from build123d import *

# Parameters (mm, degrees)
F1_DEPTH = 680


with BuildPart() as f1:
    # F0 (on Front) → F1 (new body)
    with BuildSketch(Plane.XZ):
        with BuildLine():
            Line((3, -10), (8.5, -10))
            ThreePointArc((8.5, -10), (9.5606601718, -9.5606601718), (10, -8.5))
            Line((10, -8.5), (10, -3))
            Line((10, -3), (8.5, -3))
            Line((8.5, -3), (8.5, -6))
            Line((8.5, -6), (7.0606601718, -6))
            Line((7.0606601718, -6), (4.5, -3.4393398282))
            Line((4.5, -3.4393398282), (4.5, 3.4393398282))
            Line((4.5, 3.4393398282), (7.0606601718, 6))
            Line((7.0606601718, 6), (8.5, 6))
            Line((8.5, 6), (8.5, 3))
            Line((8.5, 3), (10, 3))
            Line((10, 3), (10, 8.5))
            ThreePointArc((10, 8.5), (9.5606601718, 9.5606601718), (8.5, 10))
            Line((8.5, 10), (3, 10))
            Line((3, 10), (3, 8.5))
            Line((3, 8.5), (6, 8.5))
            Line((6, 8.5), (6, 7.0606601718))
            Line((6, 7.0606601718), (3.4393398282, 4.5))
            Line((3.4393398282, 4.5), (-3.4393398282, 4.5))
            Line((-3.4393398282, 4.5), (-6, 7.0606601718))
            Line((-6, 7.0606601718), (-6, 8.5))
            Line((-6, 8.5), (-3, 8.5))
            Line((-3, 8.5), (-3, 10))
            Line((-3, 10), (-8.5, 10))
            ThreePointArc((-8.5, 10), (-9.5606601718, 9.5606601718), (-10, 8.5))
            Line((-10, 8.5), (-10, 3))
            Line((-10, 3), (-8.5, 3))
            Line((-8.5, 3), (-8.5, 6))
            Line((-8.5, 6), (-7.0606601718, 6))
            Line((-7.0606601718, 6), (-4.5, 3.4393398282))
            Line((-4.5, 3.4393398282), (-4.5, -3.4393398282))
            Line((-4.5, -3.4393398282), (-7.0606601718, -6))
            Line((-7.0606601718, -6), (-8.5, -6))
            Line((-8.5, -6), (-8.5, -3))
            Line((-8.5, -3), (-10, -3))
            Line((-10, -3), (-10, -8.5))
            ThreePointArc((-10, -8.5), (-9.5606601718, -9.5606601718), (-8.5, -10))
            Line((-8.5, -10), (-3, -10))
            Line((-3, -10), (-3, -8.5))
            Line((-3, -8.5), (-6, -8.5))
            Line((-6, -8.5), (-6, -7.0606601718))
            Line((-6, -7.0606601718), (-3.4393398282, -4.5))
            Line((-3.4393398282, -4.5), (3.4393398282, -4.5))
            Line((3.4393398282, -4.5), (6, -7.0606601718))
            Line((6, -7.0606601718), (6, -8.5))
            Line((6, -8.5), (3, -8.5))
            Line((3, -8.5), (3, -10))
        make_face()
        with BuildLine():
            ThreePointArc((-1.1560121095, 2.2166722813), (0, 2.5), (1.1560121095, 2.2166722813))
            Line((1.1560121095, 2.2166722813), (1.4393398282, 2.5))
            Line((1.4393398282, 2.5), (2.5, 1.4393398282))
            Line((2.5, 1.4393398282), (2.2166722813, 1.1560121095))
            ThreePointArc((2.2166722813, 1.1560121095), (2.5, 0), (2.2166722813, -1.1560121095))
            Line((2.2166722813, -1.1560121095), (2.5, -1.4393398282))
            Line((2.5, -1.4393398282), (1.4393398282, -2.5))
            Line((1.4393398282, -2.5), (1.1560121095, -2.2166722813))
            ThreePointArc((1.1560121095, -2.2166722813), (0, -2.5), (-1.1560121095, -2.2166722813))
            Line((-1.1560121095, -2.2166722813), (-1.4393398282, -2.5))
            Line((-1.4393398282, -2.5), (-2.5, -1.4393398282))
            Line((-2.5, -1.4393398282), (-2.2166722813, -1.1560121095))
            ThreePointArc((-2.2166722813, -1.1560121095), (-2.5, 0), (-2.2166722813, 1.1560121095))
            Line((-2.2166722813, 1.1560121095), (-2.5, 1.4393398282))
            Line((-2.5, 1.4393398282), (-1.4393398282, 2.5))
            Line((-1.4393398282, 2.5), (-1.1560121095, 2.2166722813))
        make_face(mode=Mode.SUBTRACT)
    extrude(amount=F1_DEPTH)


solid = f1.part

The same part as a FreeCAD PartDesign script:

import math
import FreeCAD as App
import Part
import Sketcher
from FreeCAD import Vector

doc = App.newDocument("Part")
body = doc.addObject("PartDesign::Body", "Body")

# Sketch on XZ plane
sketch1 = doc.addObject("Sketcher::SketchObject", "Sketch")
body.addObject(sketch1)
sketch1.AttachmentSupport = (doc.XZ_Plane, [""])
sketch1.MapMode = "FlatFace"
sketch1.addGeometry(Part.LineSegment(Vector(3, -10, 0), Vector(8.5, -10, 0)), False)
sketch1.addGeometry(Part.ArcOfCircle(Part.Circle(Vector(8.5, -8.5, 0), Vector(0, 0, 1), 1.5), math.radians(-90), math.radians(0)), False)
sketch1.addGeometry(Part.LineSegment(Vector(10, -8.5, 0), Vector(10, -3, 0)), False)
sketch1.addGeometry(Part.LineSegment(Vector(10, -3, 0), Vector(8.5, -3, 0)), False)
sketch1.addGeometry(Part.LineSegment(Vector(8.5, -3, 0), Vector(8.5, -6, 0)), False)
sketch1.addGeometry(Part.LineSegment(Vector(8.5, -6, 0), Vector(7.06066, -6, 0)), False)
sketch1.addGeometry(Part.LineSegment(Vector(7.06066, -6, 0), Vector(4.5, -3.43934, 0)), False)
sketch1.addGeometry(Part.LineSegment(Vector(4.5, -3.43934, 0), Vector(4.5, 3.43934, 0)), False)
sketch1.addGeometry(Part.LineSegment(Vector(4.5, 3.43934, 0), Vector(7.06066, 6, 0)), False)
sketch1.addGeometry(Part.LineSegment(Vector(7.06066, 6, 0), Vector(8.5, 6, 0)), False)
sketch1.addGeometry(Part.LineSegment(Vector(8.5, 6, 0), Vector(8.5, 3, 0)), False)
sketch1.addGeometry(Part.LineSegment(Vector(8.5, 3, 0), Vector(10, 3, 0)), False)
sketch1.addGeometry(Part.LineSegment(Vector(10, 3, 0), Vector(10, 8.5, 0)), False)
sketch1.addGeometry(Part.ArcOfCircle(Part.Circle(Vector(8.5, 8.5, 0), Vector(0, 0, 1), 1.5), math.radians(0), math.radians(90)), False)
sketch1.addGeometry(Part.LineSegment(Vector(8.5, 10, 0), Vector(3, 10, 0)), False)
sketch1.addGeometry(Part.LineSegment(Vector(3, 10, 0), Vector(3, 8.5, 0)), False)
sketch1.addGeometry(Part.LineSegment(Vector(3, 8.5, 0), Vector(6, 8.5, 0)), False)
sketch1.addGeometry(Part.LineSegment(Vector(6, 8.5, 0), Vector(6, 7.06066, 0)), False)
sketch1.addGeometry(Part.LineSegment(Vector(6, 7.06066, 0), Vector(3.43934, 4.5, 0)), False)
sketch1.addGeometry(Part.LineSegment(Vector(3.43934, 4.5, 0), Vector(-3.43934, 4.5, 0)), False)
sketch1.addGeometry(Part.LineSegment(Vector(-3.43934, 4.5, 0), Vector(-6, 7.06066, 0)), False)
sketch1.addGeometry(Part.LineSegment(Vector(-6, 7.06066, 0), Vector(-6, 8.5, 0)), False)
sketch1.addGeometry(Part.LineSegment(Vector(-6, 8.5, 0), Vector(-3, 8.5, 0)), False)
sketch1.addGeometry(Part.LineSegment(Vector(-3, 8.5, 0), Vector(-3, 10, 0)), False)
sketch1.addGeometry(Part.LineSegment(Vector(-3, 10, 0), Vector(-8.5, 10, 0)), False)
sketch1.addGeometry(Part.ArcOfCircle(Part.Circle(Vector(-8.5, 8.5, 0), Vector(0, 0, 1), 1.5), math.radians(90), math.radians(180)), False)
sketch1.addGeometry(Part.LineSegment(Vector(-10, 8.5, 0), Vector(-10, 3, 0)), False)
sketch1.addGeometry(Part.LineSegment(Vector(-10, 3, 0), Vector(-8.5, 3, 0)), False)
sketch1.addGeometry(Part.LineSegment(Vector(-8.5, 3, 0), Vector(-8.5, 6, 0)), False)
sketch1.addGeometry(Part.LineSegment(Vector(-8.5, 6, 0), Vector(-7.06066, 6, 0)), False)
sketch1.addGeometry(Part.LineSegment(Vector(-7.06066, 6, 0), Vector(-4.5, 3.43934, 0)), False)
sketch1.addGeometry(Part.LineSegment(Vector(-4.5, 3.43934, 0), Vector(-4.5, -3.43934, 0)), False)
sketch1.addGeometry(Part.LineSegment(Vector(-4.5, -3.43934, 0), Vector(-7.06066, -6, 0)), False)
sketch1.addGeometry(Part.LineSegment(Vector(-7.06066, -6, 0), Vector(-8.5, -6, 0)), False)
sketch1.addGeometry(Part.LineSegment(Vector(-8.5, -6, 0), Vector(-8.5, -3, 0)), False)
sketch1.addGeometry(Part.LineSegment(Vector(-8.5, -3, 0), Vector(-10, -3, 0)), False)
sketch1.addGeometry(Part.LineSegment(Vector(-10, -3, 0), Vector(-10, -8.5, 0)), False)
sketch1.addGeometry(Part.ArcOfCircle(Part.Circle(Vector(-8.5, -8.5, 0), Vector(0, 0, 1), 1.5), math.radians(180), math.radians(270)), False)
sketch1.addGeometry(Part.LineSegment(Vector(-8.5, -10, 0), Vector(-3, -10, 0)), False)
sketch1.addGeometry(Part.LineSegment(Vector(-3, -10, 0), Vector(-3, -8.5, 0)), False)
sketch1.addGeometry(Part.LineSegment(Vector(-3, -8.5, 0), Vector(-6, -8.5, 0)), False)
sketch1.addGeometry(Part.LineSegment(Vector(-6, -8.5, 0), Vector(-6, -7.06066, 0)), False)
sketch1.addGeometry(Part.LineSegment(Vector(-6, -7.06066, 0), Vector(-3.43934, -4.5, 0)), False)
sketch1.addGeometry(Part.LineSegment(Vector(-3.43934, -4.5, 0), Vector(3.43934, -4.5, 0)), False)
sketch1.addGeometry(Part.LineSegment(Vector(3.43934, -4.5, 0), Vector(6, -7.06066, 0)), False)
sketch1.addGeometry(Part.LineSegment(Vector(6, -7.06066, 0), Vector(6, -8.5, 0)), False)
sketch1.addGeometry(Part.LineSegment(Vector(6, -8.5, 0), Vector(3, -8.5, 0)), False)
sketch1.addGeometry(Part.LineSegment(Vector(3, -8.5, 0), Vector(3, -10, 0)), False)
sketch1.addGeometry(Part.LineSegment(Vector(-1.43934, 2.5, 0), Vector(-1.156012, 2.216672, 0)), False)
sketch1.addGeometry(Part.ArcOfCircle(Part.Circle(Vector(0, 0, 0), Vector(0, 0, 1), 2.5), math.radians(62.457603), math.radians(117.542397)), False)
sketch1.addGeometry(Part.LineSegment(Vector(1.156012, 2.216672, 0), Vector(1.43934, 2.5, 0)), False)
sketch1.addGeometry(Part.LineSegment(Vector(1.43934, 2.5, 0), Vector(2.5, 1.43934, 0)), False)
sketch1.addGeometry(Part.LineSegment(Vector(2.5, 1.43934, 0), Vector(2.216672, 1.156012, 0)), False)
sketch1.addGeometry(Part.ArcOfCircle(Part.Circle(Vector(0, 0, 0), Vector(0, 0, 1), 2.5), math.radians(-27.542397), math.radians(27.542397)), False)
sketch1.addGeometry(Part.LineSegment(Vector(2.216672, -1.156012, 0), Vector(2.5, -1.43934, 0)), False)
sketch1.addGeometry(Part.LineSegment(Vector(2.5, -1.43934, 0), Vector(1.43934, -2.5, 0)), False)
sketch1.addGeometry(Part.LineSegment(Vector(1.43934, -2.5, 0), Vector(1.156012, -2.216672, 0)), False)
sketch1.addGeometry(Part.ArcOfCircle(Part.Circle(Vector(0, 0, 0), Vector(0, 0, 1), 2.5), math.radians(-117.542397), math.radians(-62.457603)), False)
sketch1.addGeometry(Part.LineSegment(Vector(-1.156012, -2.216672, 0), Vector(-1.43934, -2.5, 0)), False)
sketch1.addGeometry(Part.LineSegment(Vector(-1.43934, -2.5, 0), Vector(-2.5, -1.43934, 0)), False)
sketch1.addGeometry(Part.LineSegment(Vector(-2.5, -1.43934, 0), Vector(-2.216672, -1.156012, 0)), False)
sketch1.addGeometry(Part.ArcOfCircle(Part.Circle(Vector(0, 0, 0), Vector(0, 0, 1), 2.5), math.radians(152.457603), math.radians(207.542397)), False)
sketch1.addGeometry(Part.LineSegment(Vector(-2.216672, 1.156012, 0), Vector(-2.5, 1.43934, 0)), False)
sketch1.addGeometry(Part.LineSegment(Vector(-2.5, 1.43934, 0), Vector(-1.43934, 2.5, 0)), False)
sketch1.addConstraint(Sketcher.Constraint("Tangent", 0, 2, 1, 1))
sketch1.addConstraint(Sketcher.Constraint("Tangent", 1, 2, 2, 1))
sketch1.addConstraint(Sketcher.Constraint("Coincident", 2, 2, 3, 1))
sketch1.addConstraint(Sketcher.Constraint("Coincident", 3, 2, 4, 1))
sketch1.addConstraint(Sketcher.Constraint("Coincident", 4, 2, 5, 1))
sketch1.addConstraint(Sketcher.Constraint("Coincident", 5, 2, 6, 1))
sketch1.addConstraint(Sketcher.Constraint("Coincident", 6, 2, 7, 1))
sketch1.addConstraint(Sketcher.Constraint("Coincident", 7, 2, 8, 1))
sketch1.addConstraint(Sketcher.Constraint("Coincident", 8, 2, 9, 1))
sketch1.addConstraint(Sketcher.Constraint("Coincident", 9, 2, 10, 1))
sketch1.addConstraint(Sketcher.Constraint("Coincident", 10, 2, 11, 1))
sketch1.addConstraint(Sketcher.Constraint("Coincident", 11, 2, 12, 1))
sketch1.addConstraint(Sketcher.Constraint("Tangent", 12, 2, 13, 1))
sketch1.addConstraint(Sketcher.Constraint("Tangent", 13, 2, 14, 1))
sketch1.addConstraint(Sketcher.Constraint("Coincident", 14, 2, 15, 1))
sketch1.addConstraint(Sketcher.Constraint("Coincident", 15, 2, 16, 1))
sketch1.addConstraint(Sketcher.Constraint("Coincident", 16, 2, 17, 1))
sketch1.addConstraint(Sketcher.Constraint("Coincident", 17, 2, 18, 1))
sketch1.addConstraint(Sketcher.Constraint("Coincident", 18, 2, 19, 1))
sketch1.addConstraint(Sketcher.Constraint("Coincident", 19, 2, 20, 1))
sketch1.addConstraint(Sketcher.Constraint("Coincident", 20, 2, 21, 1))
sketch1.addConstraint(Sketcher.Constraint("Coincident", 21, 2, 22, 1))
sketch1.addConstraint(Sketcher.Constraint("Coincident", 22, 2, 23, 1))
sketch1.addConstraint(Sketcher.Constraint("Coincident", 23, 2, 24, 1))
sketch1.addConstraint(Sketcher.Constraint("Tangent", 24, 2, 25, 1))
sketch1.addConstraint(Sketcher.Constraint("Tangent", 25, 2, 26, 1))
sketch1.addConstraint(Sketcher.Constraint("Coincident", 26, 2, 27, 1))
sketch1.addConstraint(Sketcher.Constraint("Coincident", 27, 2, 28, 1))
sketch1.addConstraint(Sketcher.Constraint("Coincident", 28, 2, 29, 1))
sketch1.addConstraint(Sketcher.Constraint("Coincident", 29, 2, 30, 1))
sketch1.addConstraint(Sketcher.Constraint("Coincident", 30, 2, 31, 1))
sketch1.addConstraint(Sketcher.Constraint("Coincident", 31, 2, 32, 1))
sketch1.addConstraint(Sketcher.Constraint("Coincident", 32, 2, 33, 1))
sketch1.addConstraint(Sketcher.Constraint("Coincident", 33, 2, 34, 1))
sketch1.addConstraint(Sketcher.Constraint("Coincident", 34, 2, 35, 1))
sketch1.addConstraint(Sketcher.Constraint("Coincident", 35, 2, 36, 1))
sketch1.addConstraint(Sketcher.Constraint("Tangent", 36, 2, 37, 1))
sketch1.addConstraint(Sketcher.Constraint("Tangent", 37, 2, 38, 1))
sketch1.addConstraint(Sketcher.Constraint("Coincident", 38, 2, 39, 1))
sketch1.addConstraint(Sketcher.Constraint("Coincident", 39, 2, 40, 1))
sketch1.addConstraint(Sketcher.Constraint("Coincident", 40, 2, 41, 1))
sketch1.addConstraint(Sketcher.Constraint("Coincident", 41, 2, 42, 1))
sketch1.addConstraint(Sketcher.Constraint("Coincident", 42, 2, 43, 1))
sketch1.addConstraint(Sketcher.Constraint("Coincident", 43, 2, 44, 1))
sketch1.addConstraint(Sketcher.Constraint("Coincident", 44, 2, 45, 1))
sketch1.addConstraint(Sketcher.Constraint("Coincident", 45, 2, 46, 1))
sketch1.addConstraint(Sketcher.Constraint("Coincident", 46, 2, 47, 1))
sketch1.addConstraint(Sketcher.Constraint("Coincident", 47, 2, 0, 1))
sketch1.addConstraint(Sketcher.Constraint("Coincident", 48, 2, 49, 2))
sketch1.addConstraint(Sketcher.Constraint("Coincident", 49, 1, 50, 1))
sketch1.addConstraint(Sketcher.Constraint("Coincident", 50, 2, 51, 1))
sketch1.addConstraint(Sketcher.Constraint("Coincident", 51, 2, 52, 1))
sketch1.addConstraint(Sketcher.Constraint("Coincident", 52, 2, 53, 2))
sketch1.addConstraint(Sketcher.Constraint("Coincident", 53, 1, 54, 1))
sketch1.addConstraint(Sketcher.Constraint("Coincident", 54, 2, 55, 1))
sketch1.addConstraint(Sketcher.Constraint("Coincident", 55, 2, 56, 1))
sketch1.addConstraint(Sketcher.Constraint("Coincident", 56, 2, 57, 2))
sketch1.addConstraint(Sketcher.Constraint("Coincident", 57, 1, 58, 1))
sketch1.addConstraint(Sketcher.Constraint("Coincident", 58, 2, 59, 1))
sketch1.addConstraint(Sketcher.Constraint("Coincident", 59, 2, 60, 1))
sketch1.addConstraint(Sketcher.Constraint("Coincident", 60, 2, 61, 2))
sketch1.addConstraint(Sketcher.Constraint("Coincident", 61, 1, 62, 1))
sketch1.addConstraint(Sketcher.Constraint("Coincident", 62, 2, 63, 1))
sketch1.addConstraint(Sketcher.Constraint("Coincident", 63, 2, 48, 1))
sketch1.addConstraint(Sketcher.Constraint("Horizontal", 0))
sketch1.addConstraint(Sketcher.Constraint("Vertical", 2))
sketch1.addConstraint(Sketcher.Constraint("Horizontal", 3))
sketch1.addConstraint(Sketcher.Constraint("Vertical", 4))
sketch1.addConstraint(Sketcher.Constraint("Horizontal", 5))
sketch1.addConstraint(Sketcher.Constraint("Vertical", 7))
sketch1.addConstraint(Sketcher.Constraint("Horizontal", 9))
sketch1.addConstraint(Sketcher.Constraint("Vertical", 10))
sketch1.addConstraint(Sketcher.Constraint("Horizontal", 11))
sketch1.addConstraint(Sketcher.Constraint("Vertical", 12))
sketch1.addConstraint(Sketcher.Constraint("Horizontal", 14))
sketch1.addConstraint(Sketcher.Constraint("Vertical", 15))
sketch1.addConstraint(Sketcher.Constraint("Horizontal", 16))
sketch1.addConstraint(Sketcher.Constraint("Vertical", 17))
sketch1.addConstraint(Sketcher.Constraint("Horizontal", 19))
sketch1.addConstraint(Sketcher.Constraint("Vertical", 21))
sketch1.addConstraint(Sketcher.Constraint("Horizontal", 22))
sketch1.addConstraint(Sketcher.Constraint("Vertical", 23))
sketch1.addConstraint(Sketcher.Constraint("Horizontal", 24))
sketch1.addConstraint(Sketcher.Constraint("Vertical", 26))
sketch1.addConstraint(Sketcher.Constraint("Horizontal", 27))
sketch1.addConstraint(Sketcher.Constraint("Vertical", 28))
sketch1.addConstraint(Sketcher.Constraint("Horizontal", 29))
sketch1.addConstraint(Sketcher.Constraint("Vertical", 31))
sketch1.addConstraint(Sketcher.Constraint("Horizontal", 33))
sketch1.addConstraint(Sketcher.Constraint("Vertical", 34))
sketch1.addConstraint(Sketcher.Constraint("Horizontal", 35))
sketch1.addConstraint(Sketcher.Constraint("Vertical", 36))
sketch1.addConstraint(Sketcher.Constraint("Horizontal", 38))
sketch1.addConstraint(Sketcher.Constraint("Vertical", 39))
sketch1.addConstraint(Sketcher.Constraint("Horizontal", 40))
sketch1.addConstraint(Sketcher.Constraint("Vertical", 41))
sketch1.addConstraint(Sketcher.Constraint("Horizontal", 43))
sketch1.addConstraint(Sketcher.Constraint("Vertical", 45))
sketch1.addConstraint(Sketcher.Constraint("Horizontal", 46))
sketch1.addConstraint(Sketcher.Constraint("Vertical", 47))
sketch1.addConstraint(Sketcher.Constraint("Coincident", 49, 3, -1, 1))
sketch1.addConstraint(Sketcher.Constraint("Coincident", 53, 3, -1, 1))
sketch1.addConstraint(Sketcher.Constraint("Coincident", 57, 3, -1, 1))
sketch1.addConstraint(Sketcher.Constraint("Coincident", 61, 3, -1, 1))
sketch1.addConstraint(Sketcher.Constraint("Equal", 1, 13))
sketch1.addConstraint(Sketcher.Constraint("Equal", 13, 25))
sketch1.addConstraint(Sketcher.Constraint("Equal", 25, 37))
sketch1.addConstraint(Sketcher.Constraint("Equal", 49, 53))
sketch1.addConstraint(Sketcher.Constraint("Equal", 53, 57))
sketch1.addConstraint(Sketcher.Constraint("Equal", 57, 61))
sketch1.addConstraint(Sketcher.Constraint("Symmetric", 1, 3, 25, 3, -1, 1))
sketch1.addConstraint(Sketcher.Constraint("Symmetric", 13, 3, 37, 3, -1, 1))
sketch1.addConstraint(Sketcher.Constraint("Symmetric", 3, 2, 27, 2, -1, 1))
sketch1.addConstraint(Sketcher.Constraint("Symmetric", 5, 2, 29, 2, -1, 1))
sketch1.addConstraint(Sketcher.Constraint("Symmetric", 6, 2, 30, 2, -1, 1))
sketch1.addConstraint(Sketcher.Constraint("Symmetric", 8, 2, 32, 2, -1, 1))
sketch1.addConstraint(Sketcher.Constraint("Symmetric", 10, 2, 34, 2, -1, 1))
sketch1.addConstraint(Sketcher.Constraint("Symmetric", 15, 2, 39, 2, -1, 1))
sketch1.addConstraint(Sketcher.Constraint("Symmetric", 17, 2, 41, 2, -1, 1))
sketch1.addConstraint(Sketcher.Constraint("Symmetric", 18, 2, 42, 2, -1, 1))
sketch1.addConstraint(Sketcher.Constraint("Symmetric", 20, 2, 44, 2, -1, 1))
sketch1.addConstraint(Sketcher.Constraint("Symmetric", 22, 2, 46, 2, -1, 1))
sketch1.addConstraint(Sketcher.Constraint("Symmetric", 50, 2, 58, 2, -1, 1))
sketch1.addConstraint(Sketcher.Constraint("Symmetric", 51, 2, 59, 2, -1, 1))
sketch1.addConstraint(Sketcher.Constraint("Symmetric", 54, 2, 62, 2, -1, 1))
sketch1.addConstraint(Sketcher.Constraint("Symmetric", 55, 2, 63, 2, -1, 1))
sketch1.addConstraint(Sketcher.Constraint("Symmetric", 13, 3, 25, 3, -2))
sketch1.addConstraint(Sketcher.Constraint("Symmetric", 17, 2, 20, 2, -2))
sketch1.addConstraint(Sketcher.Constraint("Symmetric", 15, 2, 22, 2, -2))
sketch1.addConstraint(Sketcher.Constraint("Symmetric", 10, 2, 27, 2, -2))
sketch1.addConstraint(Sketcher.Constraint("Symmetric", 8, 2, 29, 2, -2))
sketch1.addConstraint(Sketcher.Constraint("Symmetric", 55, 2, 58, 2, -2))
sketch1.addConstraint(Sketcher.Constraint("Symmetric", 54, 2, 59, 2, -2))
sketch1.addConstraint(Sketcher.Constraint("Perpendicular", 6, 8))
sketch1.addConstraint(Sketcher.Constraint("Parallel", 8, 18))
sketch1.addConstraint(Sketcher.Constraint("Perpendicular", 18, 20))
sketch1.addConstraint(Sketcher.Constraint("Perpendicular", 30, 32))
sketch1.addConstraint(Sketcher.Constraint("Perpendicular", 42, 44))
sketch1.addConstraint(Sketcher.Constraint("Parallel", 44, 48))
sketch1.addConstraint(Sketcher.Constraint("Perpendicular", 48, 50))
sketch1.addConstraint(Sketcher.Constraint("Perpendicular", 50, 51))
sketch1.addConstraint(Sketcher.Constraint("Perpendicular", 51, 52))
sketch1.addConstraint(Sketcher.Constraint("Perpendicular", 52, 54))
sketch1.addConstraint(Sketcher.Constraint("Perpendicular", 54, 55))
sketch1.addConstraint(Sketcher.Constraint("Perpendicular", 55, 56))
sketch1.addConstraint(Sketcher.Constraint("Perpendicular", 56, 58))
sketch1.addConstraint(Sketcher.Constraint("Perpendicular", 59, 60))
sketch1.addConstraint(Sketcher.Constraint("Perpendicular", 60, 62))
sketch1.addConstraint(Sketcher.Constraint("Horizontal", 12, 2, 15, 2))
sketch1.addConstraint(Sketcher.Constraint("Vertical", 0, 2, 3, 2))
sketch1.addConstraint(Sketcher.Constraint("Equal", 38, 2))
sketch1.addConstraint(Sketcher.Constraint("Equal", 46, 4))
sketch1.addConstraint(Sketcher.Constraint("Equal", 43, 7))
sketch1.addConstraint(Sketcher.Constraint("Equal", 33, 17))
sketch1.addConstraint(Sketcher.Constraint("Equal", 8, 18))
sketch1.addConstraint(Sketcher.Constraint("Equal", 50, 52))
sketch1.addConstraint(Sketcher.Constraint("Radius", 1, 1.5))
sketch1.addConstraint(Sketcher.Constraint("Radius", 49, 2.5))
sketch1.addConstraint(Sketcher.Constraint("DistanceX", 16, 1, 16, 2, 3.0))
sketch1.addConstraint(Sketcher.Constraint("DistanceX", 0, 1, 0, 2, 5.5))
sketch1.addConstraint(Sketcher.Constraint("DistanceY", 0, 2, -1, 1, 10.0))
sketch1.addConstraint(Sketcher.Constraint("Distance", 51, 1.5))
sketch1.addConstraint(Sketcher.Constraint("DistanceX", -1, 1, 6, 2, 4.5))
sketch1.addConstraint(Sketcher.Constraint("DistanceY", -1, 1, 50, 2, 2.5))
sketch1.addConstraint(Sketcher.Constraint("DistanceX", 5, 2, 5, 1, 1.43934))
pad1 = doc.addObject("PartDesign::Pad", "Pad")
body.addObject(pad1)
pad1.Profile = sketch1
pad1.Length = 680

doc.recompute()
